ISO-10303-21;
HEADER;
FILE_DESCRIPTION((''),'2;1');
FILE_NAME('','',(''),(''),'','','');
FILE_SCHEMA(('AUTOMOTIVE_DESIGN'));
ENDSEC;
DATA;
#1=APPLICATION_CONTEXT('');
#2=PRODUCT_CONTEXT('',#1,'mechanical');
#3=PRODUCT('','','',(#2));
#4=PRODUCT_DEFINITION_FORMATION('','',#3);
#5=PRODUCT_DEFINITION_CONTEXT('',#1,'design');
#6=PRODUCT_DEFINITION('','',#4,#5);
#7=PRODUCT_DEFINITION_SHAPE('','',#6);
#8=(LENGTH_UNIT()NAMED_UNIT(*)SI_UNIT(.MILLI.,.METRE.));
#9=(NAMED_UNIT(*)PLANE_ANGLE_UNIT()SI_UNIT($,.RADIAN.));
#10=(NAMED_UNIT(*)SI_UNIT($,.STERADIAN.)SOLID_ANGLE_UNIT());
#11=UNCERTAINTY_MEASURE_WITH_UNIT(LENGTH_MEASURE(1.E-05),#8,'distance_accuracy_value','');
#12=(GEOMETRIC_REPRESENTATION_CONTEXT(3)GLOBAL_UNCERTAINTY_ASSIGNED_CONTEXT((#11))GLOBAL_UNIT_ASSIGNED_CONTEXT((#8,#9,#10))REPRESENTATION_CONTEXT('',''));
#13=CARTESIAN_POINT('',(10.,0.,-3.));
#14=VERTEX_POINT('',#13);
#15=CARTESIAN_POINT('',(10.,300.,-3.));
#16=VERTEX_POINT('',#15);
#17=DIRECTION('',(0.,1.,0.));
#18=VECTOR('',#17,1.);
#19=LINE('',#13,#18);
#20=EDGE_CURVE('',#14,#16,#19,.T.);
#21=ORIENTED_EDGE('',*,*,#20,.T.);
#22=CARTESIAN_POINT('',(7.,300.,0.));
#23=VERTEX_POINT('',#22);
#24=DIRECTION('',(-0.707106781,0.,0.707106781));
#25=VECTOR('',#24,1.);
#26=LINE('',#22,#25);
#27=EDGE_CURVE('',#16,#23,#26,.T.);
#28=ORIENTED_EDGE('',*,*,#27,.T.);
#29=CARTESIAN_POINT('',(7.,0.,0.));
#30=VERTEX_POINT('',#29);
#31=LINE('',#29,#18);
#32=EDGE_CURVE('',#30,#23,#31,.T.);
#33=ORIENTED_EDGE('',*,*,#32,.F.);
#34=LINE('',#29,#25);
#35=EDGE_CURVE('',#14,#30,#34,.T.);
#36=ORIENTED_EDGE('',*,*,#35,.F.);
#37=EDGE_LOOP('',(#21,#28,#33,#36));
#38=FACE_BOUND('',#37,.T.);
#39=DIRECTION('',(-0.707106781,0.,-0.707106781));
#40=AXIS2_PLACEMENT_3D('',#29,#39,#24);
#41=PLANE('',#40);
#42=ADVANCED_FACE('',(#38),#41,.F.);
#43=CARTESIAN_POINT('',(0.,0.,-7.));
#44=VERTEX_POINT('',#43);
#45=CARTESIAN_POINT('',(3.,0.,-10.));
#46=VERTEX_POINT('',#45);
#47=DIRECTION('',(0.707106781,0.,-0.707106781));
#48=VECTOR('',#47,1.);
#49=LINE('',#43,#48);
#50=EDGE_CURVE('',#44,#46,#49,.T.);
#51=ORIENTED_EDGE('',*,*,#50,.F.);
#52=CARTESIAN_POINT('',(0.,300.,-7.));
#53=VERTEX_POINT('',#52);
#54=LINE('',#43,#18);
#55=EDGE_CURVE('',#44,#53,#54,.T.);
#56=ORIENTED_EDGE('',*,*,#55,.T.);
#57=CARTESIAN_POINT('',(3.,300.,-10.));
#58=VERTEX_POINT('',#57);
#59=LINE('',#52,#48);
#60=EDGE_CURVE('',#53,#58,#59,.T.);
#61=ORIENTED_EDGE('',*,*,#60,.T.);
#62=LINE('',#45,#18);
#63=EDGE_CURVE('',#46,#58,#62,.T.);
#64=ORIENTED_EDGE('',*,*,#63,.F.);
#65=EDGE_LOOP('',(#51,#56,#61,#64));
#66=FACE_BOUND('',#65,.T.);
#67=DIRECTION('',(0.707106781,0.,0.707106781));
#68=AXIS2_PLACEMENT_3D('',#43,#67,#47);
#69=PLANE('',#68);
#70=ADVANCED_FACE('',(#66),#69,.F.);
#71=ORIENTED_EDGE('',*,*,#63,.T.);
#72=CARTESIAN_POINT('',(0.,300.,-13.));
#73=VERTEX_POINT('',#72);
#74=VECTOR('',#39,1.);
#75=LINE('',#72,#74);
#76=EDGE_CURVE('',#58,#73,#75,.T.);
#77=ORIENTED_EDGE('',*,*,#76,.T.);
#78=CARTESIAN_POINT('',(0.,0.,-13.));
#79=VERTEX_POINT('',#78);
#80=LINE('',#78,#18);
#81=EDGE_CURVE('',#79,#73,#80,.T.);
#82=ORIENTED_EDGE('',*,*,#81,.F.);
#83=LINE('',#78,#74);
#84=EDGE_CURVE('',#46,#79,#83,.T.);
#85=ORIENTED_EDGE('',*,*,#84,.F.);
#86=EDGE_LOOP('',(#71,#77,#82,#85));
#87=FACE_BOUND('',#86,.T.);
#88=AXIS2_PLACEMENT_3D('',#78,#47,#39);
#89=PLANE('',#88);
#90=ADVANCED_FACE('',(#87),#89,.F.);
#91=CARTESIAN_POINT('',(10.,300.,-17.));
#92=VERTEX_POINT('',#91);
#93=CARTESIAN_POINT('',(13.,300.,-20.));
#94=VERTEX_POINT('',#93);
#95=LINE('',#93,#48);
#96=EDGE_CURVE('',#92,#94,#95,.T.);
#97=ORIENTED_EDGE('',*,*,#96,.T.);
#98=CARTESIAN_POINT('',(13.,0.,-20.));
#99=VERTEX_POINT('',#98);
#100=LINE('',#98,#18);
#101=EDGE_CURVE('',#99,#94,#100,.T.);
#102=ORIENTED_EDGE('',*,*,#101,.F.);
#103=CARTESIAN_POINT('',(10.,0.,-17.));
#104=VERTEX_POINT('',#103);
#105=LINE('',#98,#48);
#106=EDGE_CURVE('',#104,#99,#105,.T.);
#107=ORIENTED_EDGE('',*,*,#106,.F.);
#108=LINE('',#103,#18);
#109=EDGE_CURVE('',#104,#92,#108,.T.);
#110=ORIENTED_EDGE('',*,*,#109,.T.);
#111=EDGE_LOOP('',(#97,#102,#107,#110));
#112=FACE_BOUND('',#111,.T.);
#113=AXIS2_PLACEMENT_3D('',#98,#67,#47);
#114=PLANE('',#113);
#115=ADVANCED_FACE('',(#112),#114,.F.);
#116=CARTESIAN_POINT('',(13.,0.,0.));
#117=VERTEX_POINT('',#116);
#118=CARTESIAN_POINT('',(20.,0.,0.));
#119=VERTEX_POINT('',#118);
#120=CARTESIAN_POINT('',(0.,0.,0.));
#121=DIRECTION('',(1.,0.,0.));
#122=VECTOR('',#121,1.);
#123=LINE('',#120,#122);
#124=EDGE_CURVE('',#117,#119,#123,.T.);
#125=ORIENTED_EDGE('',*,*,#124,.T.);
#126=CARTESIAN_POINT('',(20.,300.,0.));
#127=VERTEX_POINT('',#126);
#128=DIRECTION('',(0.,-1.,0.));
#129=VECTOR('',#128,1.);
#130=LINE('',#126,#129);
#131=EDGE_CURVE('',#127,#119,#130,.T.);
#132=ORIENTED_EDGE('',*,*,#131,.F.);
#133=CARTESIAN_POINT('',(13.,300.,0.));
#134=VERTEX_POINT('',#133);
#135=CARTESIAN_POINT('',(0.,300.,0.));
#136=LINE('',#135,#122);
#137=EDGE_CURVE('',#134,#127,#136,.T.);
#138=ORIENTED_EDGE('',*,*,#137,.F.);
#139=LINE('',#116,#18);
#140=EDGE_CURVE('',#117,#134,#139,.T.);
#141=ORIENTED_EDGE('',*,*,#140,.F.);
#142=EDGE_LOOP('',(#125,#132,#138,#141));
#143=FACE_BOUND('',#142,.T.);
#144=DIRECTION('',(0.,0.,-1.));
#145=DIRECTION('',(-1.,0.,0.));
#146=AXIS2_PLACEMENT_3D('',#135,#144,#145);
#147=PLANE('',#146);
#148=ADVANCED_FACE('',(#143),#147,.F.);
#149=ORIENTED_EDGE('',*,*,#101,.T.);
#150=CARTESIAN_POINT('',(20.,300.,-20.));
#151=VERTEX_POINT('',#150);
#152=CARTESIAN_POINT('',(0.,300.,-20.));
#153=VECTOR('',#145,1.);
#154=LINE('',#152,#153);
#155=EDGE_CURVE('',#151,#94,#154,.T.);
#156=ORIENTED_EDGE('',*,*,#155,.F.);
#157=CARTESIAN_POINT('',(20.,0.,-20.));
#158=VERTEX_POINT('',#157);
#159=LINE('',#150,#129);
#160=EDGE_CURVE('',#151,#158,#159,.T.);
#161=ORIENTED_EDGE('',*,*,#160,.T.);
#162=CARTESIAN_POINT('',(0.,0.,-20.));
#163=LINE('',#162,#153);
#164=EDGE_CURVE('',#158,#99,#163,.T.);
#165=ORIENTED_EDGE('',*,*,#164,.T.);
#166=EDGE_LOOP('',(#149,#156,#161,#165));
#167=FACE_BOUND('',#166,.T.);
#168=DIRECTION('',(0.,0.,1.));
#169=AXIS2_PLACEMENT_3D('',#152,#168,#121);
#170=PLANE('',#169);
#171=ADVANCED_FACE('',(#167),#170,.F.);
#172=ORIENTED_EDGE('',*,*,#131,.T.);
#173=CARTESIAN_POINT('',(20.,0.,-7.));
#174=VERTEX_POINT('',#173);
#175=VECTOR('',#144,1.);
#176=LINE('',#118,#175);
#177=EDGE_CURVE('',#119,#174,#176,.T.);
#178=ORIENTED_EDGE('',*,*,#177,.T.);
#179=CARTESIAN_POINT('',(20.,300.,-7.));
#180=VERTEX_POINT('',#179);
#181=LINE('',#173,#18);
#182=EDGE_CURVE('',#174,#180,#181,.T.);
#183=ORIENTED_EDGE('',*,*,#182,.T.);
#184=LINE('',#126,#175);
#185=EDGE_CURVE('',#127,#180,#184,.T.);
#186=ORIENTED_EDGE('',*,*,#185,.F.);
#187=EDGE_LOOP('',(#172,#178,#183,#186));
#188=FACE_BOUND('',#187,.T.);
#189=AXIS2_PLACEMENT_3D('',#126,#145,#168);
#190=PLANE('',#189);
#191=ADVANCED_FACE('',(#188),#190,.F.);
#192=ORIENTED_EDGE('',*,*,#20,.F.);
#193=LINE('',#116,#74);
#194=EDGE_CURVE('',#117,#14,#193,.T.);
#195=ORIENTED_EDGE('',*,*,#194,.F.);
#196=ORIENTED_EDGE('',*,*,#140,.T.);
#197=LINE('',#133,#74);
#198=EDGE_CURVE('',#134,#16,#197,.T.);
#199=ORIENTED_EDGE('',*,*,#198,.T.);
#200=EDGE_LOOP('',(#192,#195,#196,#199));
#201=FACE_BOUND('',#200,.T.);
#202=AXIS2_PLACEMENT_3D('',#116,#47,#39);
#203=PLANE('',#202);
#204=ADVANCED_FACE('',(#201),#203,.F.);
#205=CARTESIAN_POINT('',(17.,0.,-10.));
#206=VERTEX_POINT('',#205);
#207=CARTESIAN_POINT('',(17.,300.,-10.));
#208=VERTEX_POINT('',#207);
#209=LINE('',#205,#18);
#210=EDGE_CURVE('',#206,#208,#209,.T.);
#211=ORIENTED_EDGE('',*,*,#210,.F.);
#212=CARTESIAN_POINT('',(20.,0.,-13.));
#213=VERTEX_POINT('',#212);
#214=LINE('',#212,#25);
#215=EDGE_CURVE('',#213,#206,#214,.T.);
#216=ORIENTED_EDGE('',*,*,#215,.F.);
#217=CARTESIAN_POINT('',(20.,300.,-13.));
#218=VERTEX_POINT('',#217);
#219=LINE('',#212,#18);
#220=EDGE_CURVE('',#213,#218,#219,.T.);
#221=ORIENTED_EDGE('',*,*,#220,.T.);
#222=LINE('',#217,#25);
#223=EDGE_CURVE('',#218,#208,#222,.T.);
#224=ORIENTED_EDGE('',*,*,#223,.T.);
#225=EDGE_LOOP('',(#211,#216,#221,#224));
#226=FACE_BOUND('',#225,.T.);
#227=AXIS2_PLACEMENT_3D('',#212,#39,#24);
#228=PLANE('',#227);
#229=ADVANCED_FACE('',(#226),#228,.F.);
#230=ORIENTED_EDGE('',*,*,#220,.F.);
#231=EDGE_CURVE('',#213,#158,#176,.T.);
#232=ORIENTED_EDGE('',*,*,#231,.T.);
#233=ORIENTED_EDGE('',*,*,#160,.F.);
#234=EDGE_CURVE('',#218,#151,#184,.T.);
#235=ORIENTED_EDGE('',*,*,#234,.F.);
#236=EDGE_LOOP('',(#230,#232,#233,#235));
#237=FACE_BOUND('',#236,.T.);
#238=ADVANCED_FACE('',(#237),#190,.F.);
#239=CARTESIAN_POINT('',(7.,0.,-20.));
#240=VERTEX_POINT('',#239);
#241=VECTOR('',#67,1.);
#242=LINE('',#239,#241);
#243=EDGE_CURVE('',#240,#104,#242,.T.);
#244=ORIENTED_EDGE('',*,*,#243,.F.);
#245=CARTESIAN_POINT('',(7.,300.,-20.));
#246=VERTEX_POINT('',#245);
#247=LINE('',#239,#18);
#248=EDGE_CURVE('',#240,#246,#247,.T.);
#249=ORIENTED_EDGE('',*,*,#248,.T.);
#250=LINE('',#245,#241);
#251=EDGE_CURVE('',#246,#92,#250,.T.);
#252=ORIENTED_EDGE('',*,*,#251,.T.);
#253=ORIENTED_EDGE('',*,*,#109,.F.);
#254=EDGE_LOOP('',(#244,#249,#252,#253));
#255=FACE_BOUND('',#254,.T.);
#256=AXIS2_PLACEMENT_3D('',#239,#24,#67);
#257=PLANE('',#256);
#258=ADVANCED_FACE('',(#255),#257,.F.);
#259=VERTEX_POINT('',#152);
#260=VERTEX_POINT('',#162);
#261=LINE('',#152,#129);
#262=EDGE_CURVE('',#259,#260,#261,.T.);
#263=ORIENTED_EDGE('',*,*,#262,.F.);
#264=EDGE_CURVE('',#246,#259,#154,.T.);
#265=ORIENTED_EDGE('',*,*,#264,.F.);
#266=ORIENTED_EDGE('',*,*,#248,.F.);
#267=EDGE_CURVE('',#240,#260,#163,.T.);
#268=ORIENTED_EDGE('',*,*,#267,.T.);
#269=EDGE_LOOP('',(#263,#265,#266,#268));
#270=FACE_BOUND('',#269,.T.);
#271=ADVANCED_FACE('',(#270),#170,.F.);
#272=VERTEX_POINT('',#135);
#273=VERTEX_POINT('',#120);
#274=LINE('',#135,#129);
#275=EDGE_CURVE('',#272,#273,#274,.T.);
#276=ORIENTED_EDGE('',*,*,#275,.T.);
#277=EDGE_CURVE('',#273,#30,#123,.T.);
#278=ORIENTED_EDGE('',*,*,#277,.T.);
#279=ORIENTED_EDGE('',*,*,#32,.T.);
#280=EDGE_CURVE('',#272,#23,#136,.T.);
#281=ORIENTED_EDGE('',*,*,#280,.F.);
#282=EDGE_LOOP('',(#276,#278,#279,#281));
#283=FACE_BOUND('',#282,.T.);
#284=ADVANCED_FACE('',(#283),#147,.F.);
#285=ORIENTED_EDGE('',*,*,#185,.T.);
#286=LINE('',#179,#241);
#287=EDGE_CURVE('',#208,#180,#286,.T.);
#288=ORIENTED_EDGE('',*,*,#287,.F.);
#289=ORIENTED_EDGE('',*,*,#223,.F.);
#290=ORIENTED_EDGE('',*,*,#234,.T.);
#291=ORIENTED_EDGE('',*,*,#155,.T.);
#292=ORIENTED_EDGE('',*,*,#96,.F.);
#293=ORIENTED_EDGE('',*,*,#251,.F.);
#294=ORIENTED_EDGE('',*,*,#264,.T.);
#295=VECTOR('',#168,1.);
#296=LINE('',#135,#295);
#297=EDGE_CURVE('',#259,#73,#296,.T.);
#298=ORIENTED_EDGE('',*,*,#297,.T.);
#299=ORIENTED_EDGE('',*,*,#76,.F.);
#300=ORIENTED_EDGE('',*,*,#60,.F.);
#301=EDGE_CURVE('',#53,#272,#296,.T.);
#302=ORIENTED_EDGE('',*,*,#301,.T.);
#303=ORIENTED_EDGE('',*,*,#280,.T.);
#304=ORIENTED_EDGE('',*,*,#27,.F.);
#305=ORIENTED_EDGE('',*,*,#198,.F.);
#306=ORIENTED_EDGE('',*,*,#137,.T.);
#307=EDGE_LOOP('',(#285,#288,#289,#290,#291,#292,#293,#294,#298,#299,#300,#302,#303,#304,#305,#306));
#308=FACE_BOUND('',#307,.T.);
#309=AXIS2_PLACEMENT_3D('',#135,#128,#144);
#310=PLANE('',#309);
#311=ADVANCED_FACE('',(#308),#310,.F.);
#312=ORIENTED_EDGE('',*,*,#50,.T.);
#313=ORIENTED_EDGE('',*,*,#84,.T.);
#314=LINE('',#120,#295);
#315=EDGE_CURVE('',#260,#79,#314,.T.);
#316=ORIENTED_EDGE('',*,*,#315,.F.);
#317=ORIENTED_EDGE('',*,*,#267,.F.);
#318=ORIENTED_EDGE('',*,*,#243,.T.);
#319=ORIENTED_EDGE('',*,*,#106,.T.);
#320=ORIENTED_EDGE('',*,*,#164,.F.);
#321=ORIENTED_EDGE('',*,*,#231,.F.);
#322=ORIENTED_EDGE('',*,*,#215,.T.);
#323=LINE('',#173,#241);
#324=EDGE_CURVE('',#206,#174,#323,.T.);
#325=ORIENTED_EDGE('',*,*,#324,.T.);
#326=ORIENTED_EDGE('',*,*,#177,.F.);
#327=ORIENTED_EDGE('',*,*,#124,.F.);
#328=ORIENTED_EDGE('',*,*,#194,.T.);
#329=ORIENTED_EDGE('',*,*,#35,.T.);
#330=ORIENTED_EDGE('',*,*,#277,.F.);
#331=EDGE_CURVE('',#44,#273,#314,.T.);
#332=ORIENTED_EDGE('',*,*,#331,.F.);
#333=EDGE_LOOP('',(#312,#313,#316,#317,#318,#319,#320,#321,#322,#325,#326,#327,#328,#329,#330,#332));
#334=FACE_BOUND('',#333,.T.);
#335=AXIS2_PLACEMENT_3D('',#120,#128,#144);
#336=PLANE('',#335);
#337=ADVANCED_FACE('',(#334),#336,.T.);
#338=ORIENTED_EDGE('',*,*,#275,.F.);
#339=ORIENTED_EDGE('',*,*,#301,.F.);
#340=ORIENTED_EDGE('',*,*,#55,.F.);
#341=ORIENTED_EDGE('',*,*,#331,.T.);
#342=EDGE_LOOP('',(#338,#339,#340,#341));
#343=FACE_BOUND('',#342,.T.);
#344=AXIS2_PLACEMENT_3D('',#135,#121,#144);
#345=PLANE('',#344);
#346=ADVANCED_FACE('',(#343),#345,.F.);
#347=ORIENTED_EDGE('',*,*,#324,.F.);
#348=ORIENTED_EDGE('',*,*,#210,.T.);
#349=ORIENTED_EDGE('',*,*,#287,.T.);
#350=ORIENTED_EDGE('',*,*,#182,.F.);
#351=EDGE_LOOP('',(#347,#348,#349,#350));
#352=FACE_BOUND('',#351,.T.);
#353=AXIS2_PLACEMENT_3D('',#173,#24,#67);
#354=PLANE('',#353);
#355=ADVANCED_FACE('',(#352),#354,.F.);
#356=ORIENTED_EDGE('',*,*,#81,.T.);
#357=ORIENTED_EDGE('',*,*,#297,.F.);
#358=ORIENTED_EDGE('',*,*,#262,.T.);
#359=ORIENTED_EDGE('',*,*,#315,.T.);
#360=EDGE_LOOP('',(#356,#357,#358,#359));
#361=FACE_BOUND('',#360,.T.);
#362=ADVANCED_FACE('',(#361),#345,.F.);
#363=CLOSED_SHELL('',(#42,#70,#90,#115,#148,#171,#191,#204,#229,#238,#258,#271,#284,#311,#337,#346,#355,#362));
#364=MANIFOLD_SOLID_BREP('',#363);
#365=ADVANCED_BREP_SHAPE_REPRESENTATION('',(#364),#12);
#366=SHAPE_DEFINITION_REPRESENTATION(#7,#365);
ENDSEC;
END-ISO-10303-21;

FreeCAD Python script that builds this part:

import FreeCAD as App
import Part
import Sketcher
Q = App.Units.Quantity


def add_polygon(sketch, points):
    """Adds a closed chain of lines whose ends are joined by coincident constraints."""
    first, n = sketch.GeometryCount, len(points)
    for a, b in zip(points, points[1:] + points[:1]):
        sketch.addGeometry(Part.LineSegment(App.Vector(*a, 0), App.Vector(*b, 0)), False)
    for i in range(n):
        sketch.addConstraint(Sketcher.Constraint("Coincident", first + i, 2, first + (i + 1) % n, 1))

doc = App.newDocument("Part")
params = doc.addObject("Spreadsheet::Sheet", "Params")
for row, (alias, value) in enumerate([
    ("sketch1_width", "20 mm"),
    ("pad1_length", "300 mm"),
    ("sketch2_width", "6 mm"),
], start=1):
    params.set(f"A{row}", alias)
    params.set(f"B{row}", "=" + value)
    params.setAlias(f"B{row}", alias)

body = doc.addObject("PartDesign::Body", "Body")

# Sketch on XZ plane
sketch1 = body.newObject("Sketcher::SketchObject", "Sketch")
sketch1.AttachmentSupport = (doc.getObject("XZ_Plane"), [""])
sketch1.MapMode = "FlatFace"
add_polygon(sketch1, [(0, -20), (0, 0), (20, 0), (20, -20)])  # lines 0-3
sketch1.addConstraint([
    Sketcher.Constraint("Vertical", 0),
    Sketcher.Constraint("Horizontal", 1),
    Sketcher.Constraint("Vertical", 2),
    Sketcher.Constraint("Horizontal", 3),
    Sketcher.Constraint("Coincident", 0, 2, -1, 1),
    Sketcher.Constraint("Equal", 3, 0),
    Sketcher.Constraint("DistanceX", 1, 1, 1, 2, Q("20 mm")),
])
sketch1.setExpression("Constraints[10]", "Params.sketch1_width")
pad1 = body.newObject("PartDesign::Pad", "Pad")
pad1.Profile = sketch1
pad1.setExpression("Length", "Params.pad1_length")
pad1.Reversed = True

# Sketch on XZ plane
sketch2 = body.newObject("Sketcher::SketchObject", "Sketch001")
sketch2.AttachmentSupport = (doc.getObject("XZ_Plane"), [""])
sketch2.MapMode = "FlatFace"
sketch2.AttachmentOffset = App.Placement(App.Vector(0, 0, -300), App.Rotation())
add_polygon(sketch2, [(7, -20), (10, -17), (13, -20)])  # lines 0-2
add_polygon(sketch2, [(20, -13), (17, -10), (20, -7)])  # lines 3-5
add_polygon(sketch2, [(0, -13), (0, -7), (3, -10)])  # lines 6-8
add_polygon(sketch2, [(7, 0), (13, 0), (10, -3)])  # lines 9-11
sketch2.addConstraint([
    Sketcher.Constraint("Horizontal", 2),
    Sketcher.Constraint("Vertical", 5),
    Sketcher.Constraint("Vertical", 6),
    Sketcher.Constraint("Horizontal", 9),
    Sketcher.Constraint("PointOnObject", 6, 2, -2),
    Sketcher.Constraint("PointOnObject", 9, 2, -1),
    Sketcher.Constraint("Perpendicular", 0, 1),
    Sketcher.Constraint("Parallel", 1, 3),
    Sketcher.Constraint("Perpendicular", 3, 4),
    Sketcher.Constraint("Perpendicular", 4, 7),
    Sketcher.Constraint("Perpendicular", 7, 8),
    Sketcher.Constraint("Parallel", 8, 10),
    Sketcher.Constraint("Perpendicular", 10, 11),
    Sketcher.Constraint("Horizontal", 4, 2, 6, 2),
    Sketcher.Constraint("Horizontal", 3, 2, 7, 2),
    Sketcher.Constraint("Horizontal", 5, 2, 8, 2),
    Sketcher.Constraint("Vertical", 1, 2, 9, 2),
    Sketcher.Constraint("Vertical", 0, 2, 10, 2),
    Sketcher.Constraint("Equal", 9, 5),
    Sketcher.Constraint("DistanceX", 2, 2, 2, 1, Q("6 mm")),
    Sketcher.Constraint("DistanceX", -1, 1, 0, 2, Q("10 mm")),
    Sketcher.Constraint("DistanceY", 0, 2, -1, 1, Q("17 mm")),
    Sketcher.Constraint("DistanceX", -1, 1, 3, 2, Q("17 mm")),
    Sketcher.Constraint("DistanceY", 3, 2, -1, 1, Q("10 mm")),
])
sketch2.setExpression("Constraints[31]", "Params.sketch2_width")
pocket1 = body.newObject("PartDesign::Pocket", "Pocket")
pocket1.Profile = sketch2
pocket1.Type = "ThroughAll"
pocket1.Reversed = True

doc.recompute()
